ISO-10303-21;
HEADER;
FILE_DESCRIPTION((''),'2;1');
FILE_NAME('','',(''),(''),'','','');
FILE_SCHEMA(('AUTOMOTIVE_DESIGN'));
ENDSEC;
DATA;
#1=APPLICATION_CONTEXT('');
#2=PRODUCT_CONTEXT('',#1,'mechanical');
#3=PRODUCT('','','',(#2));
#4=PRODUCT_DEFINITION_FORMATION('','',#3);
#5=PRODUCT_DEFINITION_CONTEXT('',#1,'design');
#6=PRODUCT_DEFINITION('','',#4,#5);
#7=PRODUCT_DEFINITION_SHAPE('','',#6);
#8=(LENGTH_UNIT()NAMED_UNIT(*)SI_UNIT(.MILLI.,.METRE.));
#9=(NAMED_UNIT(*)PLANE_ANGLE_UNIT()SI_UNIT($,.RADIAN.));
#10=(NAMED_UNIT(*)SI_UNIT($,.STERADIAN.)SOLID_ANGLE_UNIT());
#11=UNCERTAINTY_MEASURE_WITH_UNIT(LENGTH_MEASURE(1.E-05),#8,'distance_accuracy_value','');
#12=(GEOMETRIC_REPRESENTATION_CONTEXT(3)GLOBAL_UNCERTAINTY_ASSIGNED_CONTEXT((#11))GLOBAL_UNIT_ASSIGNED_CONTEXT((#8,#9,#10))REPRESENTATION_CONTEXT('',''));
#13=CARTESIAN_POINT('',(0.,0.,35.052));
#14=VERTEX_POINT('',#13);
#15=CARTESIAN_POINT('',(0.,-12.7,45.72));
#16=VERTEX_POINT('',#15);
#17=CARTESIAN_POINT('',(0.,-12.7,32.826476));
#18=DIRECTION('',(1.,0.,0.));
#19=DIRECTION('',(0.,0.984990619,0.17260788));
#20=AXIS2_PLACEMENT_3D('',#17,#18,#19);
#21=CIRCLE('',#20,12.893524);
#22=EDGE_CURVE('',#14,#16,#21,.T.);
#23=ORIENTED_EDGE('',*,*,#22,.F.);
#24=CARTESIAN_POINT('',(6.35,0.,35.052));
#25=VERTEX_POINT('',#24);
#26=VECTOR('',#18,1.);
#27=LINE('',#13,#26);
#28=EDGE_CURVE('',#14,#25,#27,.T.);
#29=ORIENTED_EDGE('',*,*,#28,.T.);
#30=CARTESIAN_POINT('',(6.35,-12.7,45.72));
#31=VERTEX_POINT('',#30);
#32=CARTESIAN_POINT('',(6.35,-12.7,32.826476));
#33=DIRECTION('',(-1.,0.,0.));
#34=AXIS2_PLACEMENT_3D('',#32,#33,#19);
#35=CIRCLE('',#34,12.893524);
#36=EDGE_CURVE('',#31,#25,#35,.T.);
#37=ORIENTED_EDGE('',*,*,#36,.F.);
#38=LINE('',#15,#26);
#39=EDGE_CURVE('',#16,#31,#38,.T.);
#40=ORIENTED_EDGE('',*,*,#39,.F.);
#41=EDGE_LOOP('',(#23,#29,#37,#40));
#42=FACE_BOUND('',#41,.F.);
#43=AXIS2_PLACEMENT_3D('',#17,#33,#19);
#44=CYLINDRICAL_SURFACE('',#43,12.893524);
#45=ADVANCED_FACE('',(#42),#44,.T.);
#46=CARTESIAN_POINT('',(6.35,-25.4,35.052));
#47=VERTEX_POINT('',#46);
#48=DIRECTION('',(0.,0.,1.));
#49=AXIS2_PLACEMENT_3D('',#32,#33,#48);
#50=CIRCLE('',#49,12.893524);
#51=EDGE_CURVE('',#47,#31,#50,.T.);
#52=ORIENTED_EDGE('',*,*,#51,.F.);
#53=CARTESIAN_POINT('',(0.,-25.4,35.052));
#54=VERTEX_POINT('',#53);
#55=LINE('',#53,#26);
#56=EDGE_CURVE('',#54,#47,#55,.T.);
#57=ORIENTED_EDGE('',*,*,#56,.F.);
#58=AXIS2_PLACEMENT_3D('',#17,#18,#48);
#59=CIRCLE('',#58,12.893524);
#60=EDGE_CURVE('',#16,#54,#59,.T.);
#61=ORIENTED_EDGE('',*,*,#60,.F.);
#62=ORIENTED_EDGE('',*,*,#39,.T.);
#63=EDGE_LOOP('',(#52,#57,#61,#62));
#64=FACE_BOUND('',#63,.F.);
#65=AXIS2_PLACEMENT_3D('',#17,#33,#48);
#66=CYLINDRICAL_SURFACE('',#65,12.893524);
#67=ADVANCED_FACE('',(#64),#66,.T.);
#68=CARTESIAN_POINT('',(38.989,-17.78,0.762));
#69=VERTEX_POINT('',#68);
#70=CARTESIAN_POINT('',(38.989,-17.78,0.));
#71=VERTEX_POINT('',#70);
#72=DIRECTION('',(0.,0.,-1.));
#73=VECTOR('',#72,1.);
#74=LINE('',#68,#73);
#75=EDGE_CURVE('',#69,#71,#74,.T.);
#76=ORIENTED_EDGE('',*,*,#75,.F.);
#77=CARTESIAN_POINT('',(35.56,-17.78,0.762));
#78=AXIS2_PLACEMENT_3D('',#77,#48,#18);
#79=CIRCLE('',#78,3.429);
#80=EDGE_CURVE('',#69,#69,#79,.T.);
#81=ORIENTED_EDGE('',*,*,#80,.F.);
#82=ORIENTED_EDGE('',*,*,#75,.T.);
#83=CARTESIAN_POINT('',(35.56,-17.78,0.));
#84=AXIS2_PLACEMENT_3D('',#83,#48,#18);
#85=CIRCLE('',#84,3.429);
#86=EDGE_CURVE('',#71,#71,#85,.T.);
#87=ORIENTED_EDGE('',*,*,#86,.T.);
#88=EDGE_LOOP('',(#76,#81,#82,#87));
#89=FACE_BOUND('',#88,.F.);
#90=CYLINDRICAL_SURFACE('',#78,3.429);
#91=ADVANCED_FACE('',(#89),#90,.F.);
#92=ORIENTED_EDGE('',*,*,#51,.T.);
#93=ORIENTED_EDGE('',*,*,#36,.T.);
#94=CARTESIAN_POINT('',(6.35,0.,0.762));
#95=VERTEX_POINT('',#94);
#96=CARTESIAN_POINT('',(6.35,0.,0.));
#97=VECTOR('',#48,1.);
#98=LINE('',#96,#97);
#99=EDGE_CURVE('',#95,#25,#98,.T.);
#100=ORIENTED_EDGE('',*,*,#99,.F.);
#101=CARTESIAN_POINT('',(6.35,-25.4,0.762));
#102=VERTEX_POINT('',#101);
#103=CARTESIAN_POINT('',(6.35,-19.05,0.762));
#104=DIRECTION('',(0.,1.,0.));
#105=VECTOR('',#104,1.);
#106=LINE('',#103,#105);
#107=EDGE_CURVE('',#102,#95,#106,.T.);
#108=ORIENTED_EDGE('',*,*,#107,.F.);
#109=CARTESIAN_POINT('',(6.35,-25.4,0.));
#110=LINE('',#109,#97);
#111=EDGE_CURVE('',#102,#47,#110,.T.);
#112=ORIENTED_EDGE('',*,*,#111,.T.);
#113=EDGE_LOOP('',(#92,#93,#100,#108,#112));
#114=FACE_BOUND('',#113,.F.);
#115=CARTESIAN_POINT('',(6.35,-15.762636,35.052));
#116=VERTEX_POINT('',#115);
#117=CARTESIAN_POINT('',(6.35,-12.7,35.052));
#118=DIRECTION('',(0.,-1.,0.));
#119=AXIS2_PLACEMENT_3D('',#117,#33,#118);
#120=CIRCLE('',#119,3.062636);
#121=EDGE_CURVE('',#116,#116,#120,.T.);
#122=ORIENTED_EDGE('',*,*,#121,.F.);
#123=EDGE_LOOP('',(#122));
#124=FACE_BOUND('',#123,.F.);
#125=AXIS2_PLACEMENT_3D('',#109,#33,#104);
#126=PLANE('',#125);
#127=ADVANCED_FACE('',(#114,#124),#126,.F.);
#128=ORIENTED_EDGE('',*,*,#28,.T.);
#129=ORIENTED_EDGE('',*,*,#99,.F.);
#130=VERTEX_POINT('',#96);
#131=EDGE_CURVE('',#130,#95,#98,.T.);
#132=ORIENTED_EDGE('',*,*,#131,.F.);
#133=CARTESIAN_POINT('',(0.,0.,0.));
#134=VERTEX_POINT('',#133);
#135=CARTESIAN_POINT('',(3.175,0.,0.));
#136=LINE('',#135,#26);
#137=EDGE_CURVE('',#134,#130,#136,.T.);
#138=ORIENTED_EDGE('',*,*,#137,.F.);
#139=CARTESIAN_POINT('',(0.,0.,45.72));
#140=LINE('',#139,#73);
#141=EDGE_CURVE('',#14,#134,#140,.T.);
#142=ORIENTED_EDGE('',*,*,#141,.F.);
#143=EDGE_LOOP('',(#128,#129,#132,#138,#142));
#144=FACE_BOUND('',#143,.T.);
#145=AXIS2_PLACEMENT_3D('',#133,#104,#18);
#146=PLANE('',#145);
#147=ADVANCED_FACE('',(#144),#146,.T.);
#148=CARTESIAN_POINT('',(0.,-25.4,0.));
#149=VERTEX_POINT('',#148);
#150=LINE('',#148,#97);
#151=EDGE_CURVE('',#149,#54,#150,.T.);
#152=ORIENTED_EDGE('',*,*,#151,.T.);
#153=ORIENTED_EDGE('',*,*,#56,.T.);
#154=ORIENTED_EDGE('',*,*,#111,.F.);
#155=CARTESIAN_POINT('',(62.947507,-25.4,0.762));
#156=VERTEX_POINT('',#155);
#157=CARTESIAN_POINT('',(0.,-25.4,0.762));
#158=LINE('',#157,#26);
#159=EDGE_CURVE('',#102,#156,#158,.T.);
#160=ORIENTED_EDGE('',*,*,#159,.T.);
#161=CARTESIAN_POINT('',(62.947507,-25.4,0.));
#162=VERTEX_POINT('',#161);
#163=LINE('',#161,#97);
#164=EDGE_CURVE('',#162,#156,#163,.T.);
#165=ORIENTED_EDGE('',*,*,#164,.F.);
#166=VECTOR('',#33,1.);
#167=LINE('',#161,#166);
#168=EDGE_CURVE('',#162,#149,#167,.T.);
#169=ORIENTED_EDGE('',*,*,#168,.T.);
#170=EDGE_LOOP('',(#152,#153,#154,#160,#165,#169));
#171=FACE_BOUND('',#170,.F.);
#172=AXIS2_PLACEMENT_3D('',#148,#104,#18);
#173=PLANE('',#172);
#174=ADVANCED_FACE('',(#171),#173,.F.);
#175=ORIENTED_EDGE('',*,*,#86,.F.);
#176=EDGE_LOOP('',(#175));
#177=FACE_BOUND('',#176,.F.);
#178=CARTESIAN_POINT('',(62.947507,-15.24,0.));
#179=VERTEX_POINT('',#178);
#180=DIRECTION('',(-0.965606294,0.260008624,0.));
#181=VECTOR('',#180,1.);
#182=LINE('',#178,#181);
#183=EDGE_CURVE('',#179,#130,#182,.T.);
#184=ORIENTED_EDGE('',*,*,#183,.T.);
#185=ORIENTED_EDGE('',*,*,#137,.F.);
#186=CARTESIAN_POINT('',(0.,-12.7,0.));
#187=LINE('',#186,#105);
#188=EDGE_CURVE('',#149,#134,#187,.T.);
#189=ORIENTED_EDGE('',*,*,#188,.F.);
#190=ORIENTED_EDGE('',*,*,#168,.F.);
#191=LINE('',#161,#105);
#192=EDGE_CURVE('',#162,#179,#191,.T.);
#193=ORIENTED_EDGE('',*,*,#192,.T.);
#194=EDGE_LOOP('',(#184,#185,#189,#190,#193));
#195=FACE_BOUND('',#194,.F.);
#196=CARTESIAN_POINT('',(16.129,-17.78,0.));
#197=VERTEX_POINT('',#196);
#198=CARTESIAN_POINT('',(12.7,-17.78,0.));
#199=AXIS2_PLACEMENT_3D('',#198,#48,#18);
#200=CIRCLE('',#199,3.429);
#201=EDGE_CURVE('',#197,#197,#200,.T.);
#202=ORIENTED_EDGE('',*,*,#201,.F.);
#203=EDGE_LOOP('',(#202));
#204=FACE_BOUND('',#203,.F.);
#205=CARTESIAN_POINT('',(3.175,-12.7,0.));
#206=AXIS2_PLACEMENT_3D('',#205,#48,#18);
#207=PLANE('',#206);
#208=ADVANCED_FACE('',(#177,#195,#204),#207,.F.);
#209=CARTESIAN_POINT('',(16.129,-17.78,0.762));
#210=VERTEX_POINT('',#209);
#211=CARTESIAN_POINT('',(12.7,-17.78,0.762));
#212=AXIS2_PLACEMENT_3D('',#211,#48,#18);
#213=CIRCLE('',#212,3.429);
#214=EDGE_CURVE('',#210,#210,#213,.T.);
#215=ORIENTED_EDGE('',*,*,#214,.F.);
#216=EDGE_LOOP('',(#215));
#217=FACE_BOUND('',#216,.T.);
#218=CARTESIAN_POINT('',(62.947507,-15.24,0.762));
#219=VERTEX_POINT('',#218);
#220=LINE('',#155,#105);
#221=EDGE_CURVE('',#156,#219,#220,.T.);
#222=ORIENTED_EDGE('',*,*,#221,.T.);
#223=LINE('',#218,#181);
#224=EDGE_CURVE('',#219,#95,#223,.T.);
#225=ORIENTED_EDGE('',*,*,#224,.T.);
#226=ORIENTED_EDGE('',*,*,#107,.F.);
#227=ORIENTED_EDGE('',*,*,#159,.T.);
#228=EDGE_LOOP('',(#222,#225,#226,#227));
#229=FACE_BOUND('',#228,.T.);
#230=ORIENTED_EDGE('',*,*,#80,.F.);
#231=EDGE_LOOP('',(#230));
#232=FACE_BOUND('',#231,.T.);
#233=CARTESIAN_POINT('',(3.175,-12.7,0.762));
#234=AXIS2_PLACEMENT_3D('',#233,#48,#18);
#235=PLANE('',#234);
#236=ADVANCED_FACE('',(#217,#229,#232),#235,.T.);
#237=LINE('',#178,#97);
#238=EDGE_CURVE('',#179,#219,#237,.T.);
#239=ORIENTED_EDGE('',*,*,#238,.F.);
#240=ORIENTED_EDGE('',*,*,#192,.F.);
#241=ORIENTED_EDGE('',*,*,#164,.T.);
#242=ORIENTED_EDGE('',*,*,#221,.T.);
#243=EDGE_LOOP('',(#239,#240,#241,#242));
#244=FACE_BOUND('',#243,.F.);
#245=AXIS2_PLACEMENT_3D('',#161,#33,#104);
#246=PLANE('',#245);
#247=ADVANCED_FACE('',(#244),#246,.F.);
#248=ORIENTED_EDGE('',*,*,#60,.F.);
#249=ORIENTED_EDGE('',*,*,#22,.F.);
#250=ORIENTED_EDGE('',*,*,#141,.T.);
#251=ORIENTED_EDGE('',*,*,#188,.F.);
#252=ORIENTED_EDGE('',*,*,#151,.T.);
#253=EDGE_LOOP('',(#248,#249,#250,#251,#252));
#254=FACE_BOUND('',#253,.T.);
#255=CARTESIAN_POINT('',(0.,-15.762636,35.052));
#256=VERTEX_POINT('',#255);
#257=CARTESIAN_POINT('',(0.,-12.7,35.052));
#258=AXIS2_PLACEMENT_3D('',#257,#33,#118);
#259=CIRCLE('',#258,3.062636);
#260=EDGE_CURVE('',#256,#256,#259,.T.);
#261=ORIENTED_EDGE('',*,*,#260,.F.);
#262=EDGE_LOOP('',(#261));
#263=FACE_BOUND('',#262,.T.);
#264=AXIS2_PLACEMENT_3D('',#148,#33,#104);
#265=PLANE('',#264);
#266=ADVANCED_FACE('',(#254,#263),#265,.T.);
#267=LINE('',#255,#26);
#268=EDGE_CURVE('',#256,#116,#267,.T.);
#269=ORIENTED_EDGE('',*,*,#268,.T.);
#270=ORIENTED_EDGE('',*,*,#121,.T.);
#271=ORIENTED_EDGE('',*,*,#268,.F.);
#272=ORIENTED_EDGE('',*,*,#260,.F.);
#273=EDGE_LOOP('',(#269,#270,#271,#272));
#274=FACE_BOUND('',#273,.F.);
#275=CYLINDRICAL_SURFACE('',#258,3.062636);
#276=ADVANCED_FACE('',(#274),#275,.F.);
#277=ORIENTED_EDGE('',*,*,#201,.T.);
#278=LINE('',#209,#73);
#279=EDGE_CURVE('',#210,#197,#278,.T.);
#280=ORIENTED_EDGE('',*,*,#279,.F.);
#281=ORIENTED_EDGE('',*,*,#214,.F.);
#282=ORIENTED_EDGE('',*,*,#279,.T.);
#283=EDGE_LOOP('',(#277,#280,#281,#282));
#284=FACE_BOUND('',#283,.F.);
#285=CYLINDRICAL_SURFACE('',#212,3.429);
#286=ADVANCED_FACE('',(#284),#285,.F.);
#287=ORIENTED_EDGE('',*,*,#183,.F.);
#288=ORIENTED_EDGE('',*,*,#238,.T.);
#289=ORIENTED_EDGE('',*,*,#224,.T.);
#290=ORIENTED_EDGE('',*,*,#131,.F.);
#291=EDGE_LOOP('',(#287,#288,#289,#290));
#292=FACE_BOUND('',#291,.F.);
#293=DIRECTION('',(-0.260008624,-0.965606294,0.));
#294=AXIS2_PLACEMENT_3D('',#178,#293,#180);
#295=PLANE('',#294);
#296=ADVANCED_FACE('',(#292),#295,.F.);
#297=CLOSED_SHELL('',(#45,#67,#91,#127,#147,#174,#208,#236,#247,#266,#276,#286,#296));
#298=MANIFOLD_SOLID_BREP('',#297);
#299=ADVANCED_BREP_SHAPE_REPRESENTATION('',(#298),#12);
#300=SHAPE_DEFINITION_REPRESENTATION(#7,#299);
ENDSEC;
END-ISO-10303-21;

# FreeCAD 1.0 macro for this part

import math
import FreeCAD as App
import Part
import Sketcher

V = App.Vector
Q = App.Units.Quantity

doc = App.newDocument("Part")
params = doc.addObject("Spreadsheet::Sheet", "Params")
for row, (alias, value) in enumerate([
    ("sketch1_height", "1 in"),
    ("sketch1_width", "0.25 in"),
    ("pad1_length", "1.8 in"),
    ("pocket1_length", "1 in"),
    ("sketch3_height", "1 in"),
    ("sketch3_height2", "0.4 in"),
    ("sketch3_width", "0.25 in"),
    ("pad2_length", "0.03 in"),
    ("sketch4_width", "0.5 in"),
    ("sketch4_height", "0.42 in"),
    ("pocket2_length", "1 in"),
    ("sketch5_diameter", "0.27 in"),
    ("pocket3_length", "1 in"),
], start=1):
    params.set(f"A{row}", alias)
    params.set(f"B{row}", "=" + value)
    params.setAlias(f"B{row}", alias)

body = doc.addObject("PartDesign::Body", "Body")

# Sketch on XY plane
sketch1 = body.newObject("Sketcher::SketchObject", "Sketch")
sketch1.AttachmentSupport = (doc.getObject("XY_Plane"), [""])
sketch1.MapMode = "FlatFace"
sketch1.addGeometry([
    Part.LineSegment(V(0, 0, 0), V(0, -25, 0)),
    Part.LineSegment(V(0, -25, 0), V(6, -25, 0)),
    Part.LineSegment(V(6, -25, 0), V(6, 0, 0)),
    Part.LineSegment(V(6, 0, 0), V(0, 0, 0)),
], False)
sketch1.addConstraint([
    Sketcher.Constraint("Coincident", 0, 2, 1, 1),
    Sketcher.Constraint("Coincident", 1, 2, 2, 1),
    Sketcher.Constraint("Coincident", 2, 2, 3, 1),
    Sketcher.Constraint("Coincident", 3, 2, 0, 1),
    Sketcher.Constraint("Vertical", 0),
    Sketcher.Constraint("Horizontal", 1),
    Sketcher.Constraint("Vertical", 2),
    Sketcher.Constraint("Horizontal", 3),
    Sketcher.Constraint("Coincident", 3, 2, -1, 1),
    Sketcher.Constraint("DistanceY", 0, 2, 0, 1, Q("1 in")),
    Sketcher.Constraint("DistanceX", 1, 1, 1, 2, Q("0.25 in")),
])
sketch1.setExpression("Constraints[9]", "Params.sketch1_height")
sketch1.setExpression("Constraints[10]", "Params.sketch1_width")
pad1 = body.newObject("PartDesign::Pad", "Pad")
pad1.Profile = sketch1
pad1.setExpression("Length", "Params.pad1_length")

# Sketch on YZ plane
sketch2 = body.newObject("Sketcher::SketchObject", "Sketch001")
sketch2.AttachmentSupport = (doc.getObject("YZ_Plane"), [""])
sketch2.MapMode = "FlatFace"
sketch2.addGeometry(Part.Circle(V(-12.7, 35.1, 0), V(0, 0, 1), 3.1), False)
sketch2.addConstraint([
    Sketcher.Constraint("DistanceX", 0, 3, -1, 1, Q("0.5 in")),
    Sketcher.Constraint("DistanceY", -1, 1, 0, 3, Q("1.38 in")),
    Sketcher.Constraint("Diameter", 0, Q("6.125272 mm")),
])
pocket1 = body.newObject("PartDesign::Pocket", "Pocket")
pocket1.Profile = sketch2
pocket1.setExpression("Length", "Params.pocket1_length")
pocket1.Reversed = True

# Sketch on XY plane
sketch3 = body.newObject("Sketcher::SketchObject", "Sketch002")
sketch3.AttachmentSupport = (doc.getObject("XY_Plane"), [""])
sketch3.MapMode = "FlatFace"
sketch3.addGeometry([
    Part.LineSegment(V(0, 0, 0), V(0, -25, 0)),  # 0
    Part.LineSegment(V(0, -25, 0), V(63, -25, 0)),  # 1
    Part.LineSegment(V(63, -25, 0), V(63, -15, 0)),  # 2
    Part.LineSegment(V(63, -15, 0), V(6, 0, 0)),  # 3
    Part.LineSegment(V(6, 0, 0), V(0, 0, 0)),  # 4
], False)
sketch3.addConstraint([
    Sketcher.Constraint("Coincident", 0, 2, 1, 1),
    Sketcher.Constraint("Coincident", 1, 2, 2, 1),
    Sketcher.Constraint("Coincident", 2, 2, 3, 1),
    Sketcher.Constraint("Coincident", 3, 2, 4, 1),
    Sketcher.Constraint("Coincident", 4, 2, 0, 1),
    Sketcher.Constraint("Vertical", 0),
    Sketcher.Constraint("Horizontal", 1),
    Sketcher.Constraint("Vertical", 2),
    Sketcher.Constraint("Horizontal", 4),
    Sketcher.Constraint("Coincident", 4, 2, -1, 1),
    Sketcher.Constraint("DistanceY", 0, 2, 0, 1, Q("1 in")),
    Sketcher.Constraint("DistanceY", 2, 1, 2, 2, Q("0.4 in")),
    Sketcher.Constraint("DistanceX", 4, 2, 4, 1, Q("0.25 in")),
    Sketcher.Constraint("Distance", 3, Q("58.613441 mm")),
])
sketch3.setExpression("Constraints[10]", "Params.sketch3_height")
sketch3.setExpression("Constraints[11]", "Params.sketch3_height2")
sketch3.setExpression("Constraints[12]", "Params.sketch3_width")
pad2 = body.newObject("PartDesign::Pad", "Pad001")
pad2.Profile = sketch3
pad2.setExpression("Length", "Params.pad2_length")

# Sketch on YZ plane
sketch4 = body.newObject("Sketcher::SketchObject", "Sketch003")
sketch4.AttachmentSupport = (doc.getObject("YZ_Plane"), [""])
sketch4.MapMode = "FlatFace"
sketch4.addGeometry([
    Part.ArcOfCircle(Part.Circle(V(-13, 33, 0), V(0, 0, 1), 13), math.radians(10), math.radians(90)),  # 0
    Part.LineSegment(V(-13, 46, 0), V(0, 46, 0)),  # 1
    Part.LineSegment(V(0, 46, 0), V(0, 35, 0)),  # 2
    Part.ArcOfCircle(Part.Circle(V(-13, 33, 0), V(0, 0, 1), 13), math.radians(90), math.radians(170)),  # 3
    Part.LineSegment(V(-25, 35, 0), V(-25, 46, 0)),  # 4
    Part.LineSegment(V(-25, 46, 0), V(-13, 46, 0)),  # 5
], False)
sketch4.addConstraint([
    Sketcher.Constraint("Tangent", 0, 2, 1, 1),
    Sketcher.Constraint("Coincident", 1, 2, 2, 1),
    Sketcher.Constraint("Coincident", 2, 2, 0, 1),
    Sketcher.Constraint("Coincident", 3, 2, 4, 1),
    Sketcher.Constraint("Coincident", 4, 2, 5, 1),
    Sketcher.Constraint("Tangent", 5, 2, 3, 1),
    Sketcher.Constraint("Horizontal", 1),
    Sketcher.Constraint("Vertical", 2),
    Sketcher.Constraint("Vertical", 4),
    Sketcher.Constraint("Horizontal", 5),
    Sketcher.Constraint("Coincident", 3, 3, 0, 3),
    Sketcher.Constraint("Equal", 0, 3),
    Sketcher.Constraint("PointOnObject", 1, 2, -2),
    Sketcher.Constraint("Horizontal", 2, 2, 3, 2),
    Sketcher.Constraint("DistanceX", 1, 1, 1, 2, Q("0.5 in")),
    Sketcher.Constraint("DistanceY", 2, 2, 2, 1, Q("0.42 in")),
    Sketcher.Constraint("DistanceY", -1, 1, 0, 2, Q("1.8 in")),
])
sketch4.setExpression("Constraints[14]", "Params.sketch4_width")
sketch4.setExpression("Constraints[15]", "Params.sketch4_height")
pocket2 = body.newObject("PartDesign::Pocket", "Pocket001")
pocket2.Profile = sketch4
pocket2.setExpression("Length", "Params.pocket2_length")
pocket2.Reversed = True

# Sketch on XY plane
sketch5 = body.newObject("Sketcher::SketchObject", "Sketch004")
sketch5.AttachmentSupport = (doc.getObject("XY_Plane"), [""])
sketch5.MapMode = "FlatFace"
sketch5.AttachmentOffset = App.Placement(V(0, 0, 0.03 * 25.4), App.Rotation())
sketch5.addGeometry([
    Part.Circle(V(12.7, -17.8, 0), V(0, 0, 1), 3.4),
    Part.Circle(V(35.6, -17.8, 0), V(0, 0, 1), 3.4),
], False)
sketch5.addConstraint([
    Sketcher.Constraint("Equal", 0, 1),
    Sketcher.Constraint("Horizontal", 0, 3, 1, 3),
    Sketcher.Constraint("Diameter", 0, Q("0.27 in")),
    Sketcher.Constraint("DistanceX", -1, 1, 0, 3, Q("0.5 in")),
    Sketcher.Constraint("DistanceY", 0, 3, -1, 1, Q("0.7 in")),
    Sketcher.Constraint("DistanceX", -1, 1, 1, 3, Q("1.4 in")),
])
sketch5.setExpression("Constraints[2]", "Params.sketch5_diameter")
pocket3 = body.newObject("PartDesign::Pocket", "Pocket002")
pocket3.Profile = sketch5
pocket3.setExpression("Length", "Params.pocket3_length")

doc.recompute()
